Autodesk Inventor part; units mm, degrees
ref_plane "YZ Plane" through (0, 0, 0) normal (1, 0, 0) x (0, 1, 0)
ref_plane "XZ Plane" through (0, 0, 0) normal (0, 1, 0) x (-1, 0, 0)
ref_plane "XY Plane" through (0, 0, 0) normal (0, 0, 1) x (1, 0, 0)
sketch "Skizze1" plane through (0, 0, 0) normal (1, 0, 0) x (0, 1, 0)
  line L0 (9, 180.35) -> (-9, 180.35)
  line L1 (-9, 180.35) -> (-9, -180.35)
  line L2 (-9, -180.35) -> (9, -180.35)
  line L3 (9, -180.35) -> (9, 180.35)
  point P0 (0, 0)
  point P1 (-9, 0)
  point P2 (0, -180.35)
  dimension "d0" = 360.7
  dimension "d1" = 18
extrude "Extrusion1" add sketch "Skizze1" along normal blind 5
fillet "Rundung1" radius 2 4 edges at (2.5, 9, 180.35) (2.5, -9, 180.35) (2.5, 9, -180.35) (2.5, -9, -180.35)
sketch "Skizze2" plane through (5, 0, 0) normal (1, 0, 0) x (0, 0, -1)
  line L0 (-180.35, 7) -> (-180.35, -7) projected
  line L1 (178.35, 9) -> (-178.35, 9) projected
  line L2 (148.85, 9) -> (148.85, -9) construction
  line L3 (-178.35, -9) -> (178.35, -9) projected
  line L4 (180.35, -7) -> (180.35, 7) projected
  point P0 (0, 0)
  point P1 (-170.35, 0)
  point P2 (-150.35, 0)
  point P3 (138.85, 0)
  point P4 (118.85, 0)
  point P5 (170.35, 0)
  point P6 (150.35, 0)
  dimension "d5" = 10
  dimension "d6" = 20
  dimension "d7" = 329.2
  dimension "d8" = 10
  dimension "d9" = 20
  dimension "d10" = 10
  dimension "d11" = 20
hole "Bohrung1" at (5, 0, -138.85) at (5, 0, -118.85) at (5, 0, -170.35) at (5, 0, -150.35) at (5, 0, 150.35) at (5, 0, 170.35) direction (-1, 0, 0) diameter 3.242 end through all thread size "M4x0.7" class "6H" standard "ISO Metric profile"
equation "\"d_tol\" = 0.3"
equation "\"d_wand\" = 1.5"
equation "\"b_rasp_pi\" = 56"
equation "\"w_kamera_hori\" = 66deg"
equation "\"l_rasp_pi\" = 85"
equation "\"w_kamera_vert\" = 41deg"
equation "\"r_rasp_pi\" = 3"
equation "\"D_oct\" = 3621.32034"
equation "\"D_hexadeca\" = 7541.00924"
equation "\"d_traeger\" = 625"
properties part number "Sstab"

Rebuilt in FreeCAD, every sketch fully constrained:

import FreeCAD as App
import Part
import Sketcher


def edges_at(feature, points):
    """Names of the edges that pass closest to the given points."""
    edges = feature.Shape.Edges
    near = lambda p: min(range(len(edges)), key=lambda i: edges[i].distToShape(Part.Vertex(*p))[0])
    return sorted({f"Edge{near(p) + 1}" for p in points})


def add_polygon(sketch, points):
    """Adds a closed chain of lines whose ends are joined by coincident constraints."""
    first, n = sketch.GeometryCount, len(points)
    for a, b in zip(points, points[1:] + points[:1]):
        sketch.addGeometry(Part.LineSegment(App.Vector(*a, 0), App.Vector(*b, 0)), False)
    for i in range(n):
        sketch.addConstraint(Sketcher.Constraint("Coincident", first + i, 2, first + (i + 1) % n, 1))

doc = App.newDocument("Part")
params = doc.addObject("Spreadsheet::Sheet", "Params")
for row, (alias, value) in enumerate([
    ("sketch1_width", "18 mm"),
    ("sketch1_height", "360.7 mm"),
    ("pad1_length", "5 mm"),
    ("fillet_radius", "2 mm"),
    ("hole_diameter", "3.242 mm"),
], start=1):
    params.set(f"A{row}", alias)
    params.set(f"B{row}", "=" + value)
    params.setAlias(f"B{row}", alias)

body = doc.addObject("PartDesign::Body", "Body")

# Sketch on YZ plane
sketch1 = body.newObject("Sketcher::SketchObject", "Sketch")
sketch1.AttachmentSupport = (doc.getObject("YZ_Plane"), [""])
sketch1.MapMode = "FlatFace"
add_polygon(sketch1, [(9, -180.35), (9, 180.35), (-9, 180.35), (-9, -180.35)])  # lines 0-3
sketch1.addConstraint([
    Sketcher.Constraint("Vertical", 0),
    Sketcher.Constraint("Horizontal", 1),
    Sketcher.Constraint("Vertical", 2),
    Sketcher.Constraint("Horizontal", 3),
    Sketcher.Constraint("Symmetric", 0, 2, 2, 2, -1, 1),
    Sketcher.Constraint("DistanceX", 1, 2, 1, 1, 18.0),
    Sketcher.Constraint("DistanceY", 0, 1, 0, 2, 360.7),
])
sketch1.setExpression("Constraints[9]", "Params.sketch1_width")
sketch1.setExpression("Constraints[10]", "Params.sketch1_height")
pad1 = body.newObject("PartDesign::Pad", "Pad")
pad1.Profile = sketch1
pad1.setExpression("Length", "Params.pad1_length")
doc.recompute()

fillet = body.newObject("PartDesign::Fillet", "Fillet")
fillet.Base = (pad1, edges_at(pad1, [
    (2.5, 9, 180.35),
    (2.5, -9, 180.35),
    (2.5, 9, -180.35),
    (2.5, -9, -180.35),
]))
fillet.setExpression("Radius", "Params.fillet_radius")

# Sketch on YZ plane
sketch2 = body.newObject("Sketcher::SketchObject", "Sketch001")
sketch2.AttachmentSupport = (doc.getObject("YZ_Plane"), [""])
sketch2.MapMode = "FlatFace"
sketch2.AttachmentOffset = App.Placement(App.Vector(0, 0, 5), App.Rotation())
sketch2.addGeometry([
    Part.Circle(App.Vector(0, -138.85, 0), App.Vector(0, 0, 1), 1.621),  # 0
    Part.Circle(App.Vector(0, -118.85, 0), App.Vector(0, 0, 1), 1.621),  # 1
    Part.Circle(App.Vector(0, -170.35, 0), App.Vector(0, 0, 1), 1.621),  # 2
    Part.Circle(App.Vector(0, -150.35, 0), App.Vector(0, 0, 1), 1.621),  # 3
    Part.Circle(App.Vector(0, 150.35, 0), App.Vector(0, 0, 1), 1.621),  # 4
    Part.Circle(App.Vector(0, 170.35, 0), App.Vector(0, 0, 1), 1.621),  # 5
], False)
sketch2.addConstraint([
    Sketcher.Constraint("Equal", 0, 1),
    Sketcher.Constraint("Equal", 1, 2),
    Sketcher.Constraint("Equal", 2, 3),
    Sketcher.Constraint("Equal", 3, 4),
    Sketcher.Constraint("Equal", 4, 5),
    Sketcher.Constraint("Symmetric", 3, 3, 4, 3, -1, 1),
    Sketcher.Constraint("Symmetric", 2, 3, 5, 3, -1, 1),
    Sketcher.Constraint("PointOnObject", 0, 3, -2),
    Sketcher.Constraint("PointOnObject", 1, 3, -2),
    Sketcher.Constraint("PointOnObject", 2, 3, -2),
    Sketcher.Constraint("PointOnObject", 3, 3, -2),
    Sketcher.Constraint("Diameter", 0, 3.242),
    Sketcher.Constraint("DistanceY", 0, 3, 1, 3, 20.0),
    Sketcher.Constraint("DistanceY", 2, 3, 3, 3, 20.0),
    Sketcher.Constraint("DistanceY", 2, 3, 0, 3, 31.5),
    Sketcher.Constraint("DistanceY", 1, 3, 4, 3, 269.2),
])
doc.recompute()
hole = body.newObject("PartDesign::Hole", "Hole")
hole.Profile = sketch2
hole.ThreadType = "None"
hole.setExpression("Diameter", "Params.hole_diameter")
hole.DepthType = "ThroughAll"

doc.recompute()
